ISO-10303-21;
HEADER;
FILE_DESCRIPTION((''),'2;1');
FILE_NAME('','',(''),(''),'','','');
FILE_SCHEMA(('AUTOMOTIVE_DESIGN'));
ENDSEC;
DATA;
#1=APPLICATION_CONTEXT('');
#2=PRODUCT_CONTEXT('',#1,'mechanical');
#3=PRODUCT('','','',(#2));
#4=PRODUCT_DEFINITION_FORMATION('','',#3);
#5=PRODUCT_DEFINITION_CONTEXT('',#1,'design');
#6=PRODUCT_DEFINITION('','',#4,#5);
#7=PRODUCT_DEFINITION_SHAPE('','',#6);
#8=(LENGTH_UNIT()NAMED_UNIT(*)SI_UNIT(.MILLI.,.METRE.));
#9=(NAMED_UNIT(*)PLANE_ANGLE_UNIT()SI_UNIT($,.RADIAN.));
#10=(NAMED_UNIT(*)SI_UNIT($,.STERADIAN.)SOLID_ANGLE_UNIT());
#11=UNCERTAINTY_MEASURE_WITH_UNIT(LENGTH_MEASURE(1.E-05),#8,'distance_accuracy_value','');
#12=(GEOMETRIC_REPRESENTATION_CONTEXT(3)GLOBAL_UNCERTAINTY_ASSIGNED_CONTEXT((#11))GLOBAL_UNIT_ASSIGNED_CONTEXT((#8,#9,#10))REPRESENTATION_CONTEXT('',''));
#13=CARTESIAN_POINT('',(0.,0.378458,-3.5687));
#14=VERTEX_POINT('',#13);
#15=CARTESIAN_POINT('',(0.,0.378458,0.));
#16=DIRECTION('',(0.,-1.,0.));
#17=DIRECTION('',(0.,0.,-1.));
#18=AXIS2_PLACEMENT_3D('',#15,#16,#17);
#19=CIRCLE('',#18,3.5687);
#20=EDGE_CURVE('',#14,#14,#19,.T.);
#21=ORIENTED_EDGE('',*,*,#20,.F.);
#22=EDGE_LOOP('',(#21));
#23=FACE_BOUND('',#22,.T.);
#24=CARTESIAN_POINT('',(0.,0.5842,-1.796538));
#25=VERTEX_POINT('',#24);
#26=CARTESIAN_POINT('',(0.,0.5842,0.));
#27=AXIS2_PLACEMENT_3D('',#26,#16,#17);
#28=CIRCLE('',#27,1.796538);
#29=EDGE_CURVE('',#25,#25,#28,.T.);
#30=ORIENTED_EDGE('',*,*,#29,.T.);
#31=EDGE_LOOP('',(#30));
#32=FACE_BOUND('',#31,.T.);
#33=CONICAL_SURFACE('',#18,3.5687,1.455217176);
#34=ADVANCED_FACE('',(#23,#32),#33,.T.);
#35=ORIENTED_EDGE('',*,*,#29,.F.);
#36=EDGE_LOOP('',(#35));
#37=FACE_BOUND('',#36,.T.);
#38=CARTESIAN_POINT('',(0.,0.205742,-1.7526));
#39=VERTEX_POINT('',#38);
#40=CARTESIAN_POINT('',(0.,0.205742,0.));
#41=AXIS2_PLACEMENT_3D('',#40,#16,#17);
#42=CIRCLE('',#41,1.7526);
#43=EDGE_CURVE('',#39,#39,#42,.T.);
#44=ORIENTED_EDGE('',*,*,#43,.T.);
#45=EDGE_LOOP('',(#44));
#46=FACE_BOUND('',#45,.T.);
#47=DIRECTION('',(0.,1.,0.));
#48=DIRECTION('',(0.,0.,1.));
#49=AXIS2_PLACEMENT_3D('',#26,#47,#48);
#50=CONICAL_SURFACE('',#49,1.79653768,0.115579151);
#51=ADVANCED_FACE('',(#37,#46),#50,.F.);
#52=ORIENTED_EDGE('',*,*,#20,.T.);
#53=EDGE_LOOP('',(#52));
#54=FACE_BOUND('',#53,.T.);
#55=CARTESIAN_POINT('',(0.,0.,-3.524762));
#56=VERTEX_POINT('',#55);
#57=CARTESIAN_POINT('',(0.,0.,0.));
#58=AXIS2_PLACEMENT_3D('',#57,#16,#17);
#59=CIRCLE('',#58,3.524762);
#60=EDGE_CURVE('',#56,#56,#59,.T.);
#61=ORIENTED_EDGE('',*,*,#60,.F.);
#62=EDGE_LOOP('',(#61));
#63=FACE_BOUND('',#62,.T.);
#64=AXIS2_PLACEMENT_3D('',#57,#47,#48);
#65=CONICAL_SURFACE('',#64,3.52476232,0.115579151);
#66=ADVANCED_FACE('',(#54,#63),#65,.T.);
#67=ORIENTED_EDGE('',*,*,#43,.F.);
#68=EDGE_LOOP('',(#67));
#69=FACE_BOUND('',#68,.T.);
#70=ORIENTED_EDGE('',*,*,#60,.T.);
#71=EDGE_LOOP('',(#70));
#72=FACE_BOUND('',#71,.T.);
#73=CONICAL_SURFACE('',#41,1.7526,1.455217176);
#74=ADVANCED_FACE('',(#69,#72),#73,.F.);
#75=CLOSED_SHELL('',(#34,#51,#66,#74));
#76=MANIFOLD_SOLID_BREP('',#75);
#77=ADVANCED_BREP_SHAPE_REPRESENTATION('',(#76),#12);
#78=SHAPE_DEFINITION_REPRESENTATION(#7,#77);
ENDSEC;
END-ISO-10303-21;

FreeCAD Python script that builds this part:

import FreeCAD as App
import Part
import Sketcher
from FreeCAD import Vector
Q = App.Units.Quantity

doc = App.newDocument("Part")
params = doc.addObject("Spreadsheet::Sheet", "Params")
for row, (alias, value) in enumerate([
    ("sketch1_length", "0.015 in"),
    ("revolution_angle", "360 deg"),
], start=1):
    params.set(f"A{row}", alias)
    params.set(f"B{row}", "=" + value)
    params.setAlias(f"B{row}", alias)

body = doc.addObject("PartDesign::Body", "Body")

sketch1 = doc.addObject("Sketcher::SketchObject", "Sketch")
body.addObject(sketch1)
sketch1.AttachmentSupport = (doc.XY_Plane, [""])
sketch1.MapMode = "FlatFace"
sketch1.addGeometry(Part.LineSegment(Vector(1.75, 0.21, 0), Vector(3.52, 0, 0)), False)
sketch1.addGeometry(Part.LineSegment(Vector(3.52, 0, 0), Vector(3.57, 0.38, 0)), False)
sketch1.addGeometry(Part.LineSegment(Vector(3.57, 0.38, 0), Vector(1.8, 0.58, 0)), False)
sketch1.addGeometry(Part.LineSegment(Vector(1.8, 0.58, 0), Vector(1.75, 0.21, 0)), False)
sketch1.addConstraint(Sketcher.Constraint("Coincident", 0, 2, 1, 1))
sketch1.addConstraint(Sketcher.Constraint("Coincident", 1, 2, 2, 1))
sketch1.addConstraint(Sketcher.Constraint("Coincident", 2, 2, 3, 1))
sketch1.addConstraint(Sketcher.Constraint("Coincident", 3, 2, 0, 1))
sketch1.addConstraint(Sketcher.Constraint("PointOnObject", 0, 2, -1))
sketch1.addConstraint(Sketcher.Constraint("Perpendicular", 0, 1))
sketch1.addConstraint(Sketcher.Constraint("Perpendicular", 1, 2))
sketch1.addConstraint(Sketcher.Constraint("Perpendicular", 2, 3))
sketch1.addConstraint(Sketcher.Constraint("Distance", 1, Q("0.015 in")))
sketch1.addConstraint(Sketcher.Constraint("DistanceY", -1, 1, 2, 2, Q("0.023 in")))
sketch1.addConstraint(Sketcher.Constraint("DistanceX", -1, 1, 3, 2, Q("0.069 in")))
sketch1.addConstraint(Sketcher.Constraint("DistanceX", -1, 1, 1, 2, Q("0.1405 in")))
sketch1.setExpression("Constraints[8]", "Params.sketch1_length")
revolution = doc.addObject("PartDesign::Revolution", "Revolution")
body.addObject(revolution)
revolution.Profile = sketch1
revolution.ReferenceAxis = (sketch1, ["V_Axis"])
revolution.setExpression("Angle", "Params.revolution_angle")

doc.recompute()
